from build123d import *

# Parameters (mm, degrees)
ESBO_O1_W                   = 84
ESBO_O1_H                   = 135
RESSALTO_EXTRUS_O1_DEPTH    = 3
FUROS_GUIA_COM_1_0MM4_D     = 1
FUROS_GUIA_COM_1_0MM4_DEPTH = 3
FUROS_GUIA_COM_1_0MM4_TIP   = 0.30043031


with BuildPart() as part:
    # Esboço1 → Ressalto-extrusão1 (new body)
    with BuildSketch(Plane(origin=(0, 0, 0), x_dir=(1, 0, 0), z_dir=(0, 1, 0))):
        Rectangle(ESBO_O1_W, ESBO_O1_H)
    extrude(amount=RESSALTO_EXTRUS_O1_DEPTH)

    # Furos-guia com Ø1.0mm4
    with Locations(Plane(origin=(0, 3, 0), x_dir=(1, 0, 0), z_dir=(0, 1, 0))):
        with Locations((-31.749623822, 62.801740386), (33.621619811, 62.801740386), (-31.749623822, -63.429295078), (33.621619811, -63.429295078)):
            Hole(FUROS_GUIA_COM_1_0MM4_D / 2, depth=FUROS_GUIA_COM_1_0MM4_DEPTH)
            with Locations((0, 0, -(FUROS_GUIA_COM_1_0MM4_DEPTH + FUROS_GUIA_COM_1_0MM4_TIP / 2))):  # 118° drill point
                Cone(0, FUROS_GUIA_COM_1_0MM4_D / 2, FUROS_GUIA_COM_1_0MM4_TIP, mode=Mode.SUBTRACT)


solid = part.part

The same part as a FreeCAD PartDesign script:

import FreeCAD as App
import Part
import Sketcher

V = App.Vector
Q = App.Units.Quantity

doc = App.newDocument("Part")
body = doc.addObject("PartDesign::Body", "Body")

sketch1 = doc.addObject("Sketcher::SketchObject", "Sketch")
body.addObject(sketch1)
sketch1.AttachmentSupport = (doc.XZ_Plane, [""])
sketch1.MapMode = "FlatFace"
sketch1.addGeometry([
    Part.LineSegment(V(-42, -68, 0), V(-42, 68, 0)),
    Part.LineSegment(V(-42, 68, 0), V(42, 68, 0)),
    Part.LineSegment(V(42, 68, 0), V(42, -68, 0)),
    Part.LineSegment(V(42, -68, 0), V(-42, -68, 0)),
], False)
sketch1.addConstraint([
    Sketcher.Constraint("Coincident", 0, 2, 1, 1),
    Sketcher.Constraint("Coincident", 1, 2, 2, 1),
    Sketcher.Constraint("Coincident", 2, 2, 3, 1),
    Sketcher.Constraint("Coincident", 3, 2, 0, 1),
    Sketcher.Constraint("Vertical", 0),
    Sketcher.Constraint("Horizontal", 1),
    Sketcher.Constraint("Vertical", 2),
    Sketcher.Constraint("Horizontal", 3),
    Sketcher.Constraint("Symmetric", 0, 2, 2, 2, -1, 1),
    Sketcher.Constraint("DistanceX", 1, 1, 1, 2, Q("84 mm")),
    Sketcher.Constraint("DistanceY", 0, 1, 0, 2, Q("135 mm")),
])
pad1 = doc.addObject("PartDesign::Pad", "Pad")
body.addObject(pad1)
pad1.Profile = sketch1
pad1.Length = 3
pad1.Reversed = True

sketch2 = doc.addObject("Sketcher::SketchObject", "Sketch001")
body.addObject(sketch2)
sketch2.AttachmentSupport = (doc.XZ_Plane, [""])
sketch2.MapMode = "FlatFace"
sketch2.AttachmentOffset = App.Placement(V(0, 0, -3), App.Rotation())
sketch2.addGeometry([
    Part.Circle(V(-31.7, -62.8, 0), V(0, 0, 1), 0.5),
    Part.Circle(V(33.6, -62.8, 0), V(0, 0, 1), 0.5),
    Part.Circle(V(-31.7, 63.4, 0), V(0, 0, 1), 0.5),
    Part.Circle(V(33.6, 63.4, 0), V(0, 0, 1), 0.5),
], False)
sketch2.addConstraint([
    Sketcher.Constraint("Equal", 0, 1),
    Sketcher.Constraint("Equal", 1, 2),
    Sketcher.Constraint("Equal", 2, 3),
    Sketcher.Constraint("Horizontal", 0, 3, 1, 3),
    Sketcher.Constraint("Horizontal", 2, 3, 3, 3),
    Sketcher.Constraint("Vertical", 0, 3, 2, 3),
    Sketcher.Constraint("Vertical", 1, 3, 3, 3),
    Sketcher.Constraint("Diameter", 0, Q("1 mm")),
    Sketcher.Constraint("DistanceY", 0, 3, -1, 1, Q("62.80174 mm")),
    Sketcher.Constraint("DistanceX", -1, 1, 1, 3, Q("33.62162 mm")),
    Sketcher.Constraint("DistanceX", 0, 3, -1, 1, Q("31.749624 mm")),
    Sketcher.Constraint("DistanceY", -1, 1, 2, 3, Q("63.429295 mm")),
])
doc.recompute()
hole = doc.addObject("PartDesign::Hole", "Hole")
body.addObject(hole)
hole.Profile = sketch2
hole.ThreadType = "None"
hole.Diameter = 1
hole.DepthType = "Dimension"
hole.Depth = 3
hole.DrillPoint = "Angled"
hole.DrillPointAngle = 118
hole.Reversed = True

doc.recompute()
